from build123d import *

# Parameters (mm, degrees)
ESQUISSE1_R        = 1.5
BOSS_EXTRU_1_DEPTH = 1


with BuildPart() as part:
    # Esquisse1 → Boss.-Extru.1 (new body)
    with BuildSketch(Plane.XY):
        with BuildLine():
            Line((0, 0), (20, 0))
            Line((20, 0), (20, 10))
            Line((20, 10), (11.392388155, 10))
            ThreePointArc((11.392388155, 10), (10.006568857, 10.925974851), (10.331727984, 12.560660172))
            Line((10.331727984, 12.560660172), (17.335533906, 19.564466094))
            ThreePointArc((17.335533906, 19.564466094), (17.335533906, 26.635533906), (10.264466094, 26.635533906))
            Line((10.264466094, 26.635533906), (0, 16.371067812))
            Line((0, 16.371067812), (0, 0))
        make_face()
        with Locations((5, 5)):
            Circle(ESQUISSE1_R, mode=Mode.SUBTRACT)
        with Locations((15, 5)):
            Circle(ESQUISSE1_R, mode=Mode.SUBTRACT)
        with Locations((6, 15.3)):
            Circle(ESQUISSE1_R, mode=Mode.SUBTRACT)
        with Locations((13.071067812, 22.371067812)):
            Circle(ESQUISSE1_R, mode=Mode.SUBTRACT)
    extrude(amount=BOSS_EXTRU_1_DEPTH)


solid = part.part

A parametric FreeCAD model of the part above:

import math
import FreeCAD as App
import Part
import Sketcher

V = App.Vector
Q = App.Units.Quantity

doc = App.newDocument("Part")
body = doc.addObject("PartDesign::Body", "Body")

sketch1 = doc.addObject("Sketcher::SketchObject", "Sketch")
body.addObject(sketch1)
sketch1.AttachmentSupport = (doc.XY_Plane, [""])
sketch1.MapMode = "FlatFace"
sketch1.addGeometry(Part.LineSegment(V(0, 0, 0), V(20, 0, 0)), False)
sketch1.addGeometry(Part.LineSegment(V(20, 0, 0), V(20, 10, 0)), False)
sketch1.addGeometry(Part.LineSegment(V(20, 10, 0), V(11.4, 10, 0)), False)
sketch1.addGeometry(Part.ArcOfCircle(Part.Circle(V(11.4, 11.5, 0), V(0, 0, 1), 1.5), math.radians(135), math.radians(270)), False)
sketch1.addGeometry(Part.LineSegment(V(10.3, 12.6, 0), V(17.3, 19.6, 0)), False)
sketch1.addGeometry(Part.ArcOfCircle(Part.Circle(V(13.8, 23.1, 0), V(0, 0, 1), 5), math.radians(-45), math.radians(135)), False)
sketch1.addGeometry(Part.LineSegment(V(10.3, 26.6, 0), V(0, 16.4, 0)), False)
sketch1.addGeometry(Part.LineSegment(V(0, 16.4, 0), V(0, 0, 0)), False)
sketch1.addGeometry(Part.Circle(V(5, 5, 0), V(0, 0, 1), 1.5), False)
sketch1.addGeometry(Part.Circle(V(15, 5, 0), V(0, 0, 1), 1.5), False)
sketch1.addGeometry(Part.Circle(V(6, 15.3, 0), V(0, 0, 1), 1.5), False)
sketch1.addGeometry(Part.Circle(V(13.1, 22.4, 0), V(0, 0, 1), 1.5), False)
sketch1.addConstraint(Sketcher.Constraint("Coincident", 0, 2, 1, 1))
sketch1.addConstraint(Sketcher.Constraint("Coincident", 1, 2, 2, 1))
sketch1.addConstraint(Sketcher.Constraint("Tangent", 2, 2, 3, 2))
sketch1.addConstraint(Sketcher.Constraint("Tangent", 3, 1, 4, 1))
sketch1.addConstraint(Sketcher.Constraint("Tangent", 4, 2, 5, 1))
sketch1.addConstraint(Sketcher.Constraint("Tangent", 5, 2, 6, 1))
sketch1.addConstraint(Sketcher.Constraint("Coincident", 6, 2, 7, 1))
sketch1.addConstraint(Sketcher.Constraint("Coincident", 7, 2, 0, 1))
sketch1.addConstraint(Sketcher.Constraint("Horizontal", 0))
sketch1.addConstraint(Sketcher.Constraint("Vertical", 1))
sketch1.addConstraint(Sketcher.Constraint("Horizontal", 2))
sketch1.addConstraint(Sketcher.Constraint("Vertical", 7))
sketch1.addConstraint(Sketcher.Constraint("Coincident", 7, 2, -1, 1))
sketch1.addConstraint(Sketcher.Constraint("Equal", 3, 8))
sketch1.addConstraint(Sketcher.Constraint("Equal", 8, 9))
sketch1.addConstraint(Sketcher.Constraint("Equal", 9, 10))
sketch1.addConstraint(Sketcher.Constraint("Equal", 10, 11))
sketch1.addConstraint(Sketcher.Constraint("Parallel", 4, 6))
sketch1.addConstraint(Sketcher.Constraint("Horizontal", 8, 3, 9, 3))
sketch1.addConstraint(Sketcher.Constraint("Diameter", 8, 3.0))
sketch1.addConstraint(Sketcher.Constraint("Radius", 5, 5.0))
sketch1.addConstraint(Sketcher.Constraint("DistanceX", 0, 1, 0, 2, 20.0))
sketch1.addConstraint(Sketcher.Constraint("DistanceY", 1, 1, 1, 2, 10.0))
sketch1.addConstraint(Sketcher.Constraint("Angle", 4, Q("45 deg")))
sketch1.addConstraint(Sketcher.Constraint("DistanceX", -1, 1, 8, 3, 5.0))
sketch1.addConstraint(Sketcher.Constraint("DistanceY", -1, 1, 8, 3, 5.0))
sketch1.addConstraint(Sketcher.Constraint("DistanceX", -1, 1, 9, 3, 15.0))
sketch1.addConstraint(Sketcher.Constraint("DistanceX", -1, 1, 10, 3, 6.0))
sketch1.addConstraint(Sketcher.Constraint("DistanceX", -1, 1, 5, 3, 13.8))
sketch1.addConstraint(Sketcher.Constraint("DistanceY", -1, 1, 5, 3, 23.1))
sketch1.addConstraint(Sketcher.Constraint("DistanceY", -1, 1, 10, 3, 15.3))
sketch1.addConstraint(Sketcher.Constraint("DistanceY", 4, 2, 11, 3, 2.806602))
sketch1.addConstraint(Sketcher.Constraint("DistanceX", 5, 2, 11, 3, 2.806602))
pad1 = doc.addObject("PartDesign::Pad", "Pad")
body.addObject(pad1)
pad1.Profile = sketch1
pad1.Length = 1

doc.recompute()
